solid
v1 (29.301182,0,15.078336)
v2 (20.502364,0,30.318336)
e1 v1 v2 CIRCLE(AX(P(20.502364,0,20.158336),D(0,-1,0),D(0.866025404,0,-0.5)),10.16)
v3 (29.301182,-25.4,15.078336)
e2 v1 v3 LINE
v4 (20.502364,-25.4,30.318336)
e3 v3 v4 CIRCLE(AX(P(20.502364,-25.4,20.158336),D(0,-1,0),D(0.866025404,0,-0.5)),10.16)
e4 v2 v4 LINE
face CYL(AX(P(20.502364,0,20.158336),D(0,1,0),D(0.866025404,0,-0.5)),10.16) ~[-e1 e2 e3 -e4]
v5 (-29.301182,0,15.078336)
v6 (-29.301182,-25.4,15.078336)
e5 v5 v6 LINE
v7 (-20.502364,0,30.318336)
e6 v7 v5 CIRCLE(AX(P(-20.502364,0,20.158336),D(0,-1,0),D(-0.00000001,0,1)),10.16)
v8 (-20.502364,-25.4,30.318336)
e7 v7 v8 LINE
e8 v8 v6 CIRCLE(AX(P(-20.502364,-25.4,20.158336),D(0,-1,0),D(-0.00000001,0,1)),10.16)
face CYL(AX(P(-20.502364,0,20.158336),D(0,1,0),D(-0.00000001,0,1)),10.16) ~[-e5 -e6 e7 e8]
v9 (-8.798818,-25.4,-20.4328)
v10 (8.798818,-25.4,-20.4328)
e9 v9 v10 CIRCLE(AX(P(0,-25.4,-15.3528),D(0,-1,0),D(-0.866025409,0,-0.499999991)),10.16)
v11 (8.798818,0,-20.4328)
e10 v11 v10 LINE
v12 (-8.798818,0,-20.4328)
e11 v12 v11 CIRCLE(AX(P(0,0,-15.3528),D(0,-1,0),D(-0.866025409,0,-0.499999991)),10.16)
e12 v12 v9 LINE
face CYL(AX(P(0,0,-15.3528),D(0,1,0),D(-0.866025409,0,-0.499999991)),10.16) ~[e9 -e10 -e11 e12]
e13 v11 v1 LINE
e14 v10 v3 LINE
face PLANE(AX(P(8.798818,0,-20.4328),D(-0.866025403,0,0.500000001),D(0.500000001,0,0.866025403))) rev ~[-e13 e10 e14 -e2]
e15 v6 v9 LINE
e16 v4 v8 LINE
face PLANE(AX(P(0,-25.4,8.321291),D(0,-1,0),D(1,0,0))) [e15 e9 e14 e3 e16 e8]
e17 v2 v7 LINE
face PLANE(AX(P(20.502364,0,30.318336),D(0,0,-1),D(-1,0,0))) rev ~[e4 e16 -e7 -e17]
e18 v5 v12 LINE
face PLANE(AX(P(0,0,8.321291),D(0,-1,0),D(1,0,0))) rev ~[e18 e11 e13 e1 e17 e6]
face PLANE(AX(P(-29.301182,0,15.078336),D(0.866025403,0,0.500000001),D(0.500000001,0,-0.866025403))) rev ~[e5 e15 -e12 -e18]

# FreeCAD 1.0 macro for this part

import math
import FreeCAD as App
import Part
import Sketcher
from FreeCAD import Vector
Q = App.Units.Quantity

doc = App.newDocument("Part")
body = doc.addObject("PartDesign::Body", "Body")

sketch1 = body.newObject("Sketcher::SketchObject", "Sketch")
sketch1.AttachmentSupport = (doc.getObject("XZ_Plane"), [""])
sketch1.MapMode = "FlatFace"
sketch1.addGeometry(Part.LineSegment(Vector(-29, 15, 0), Vector(-9, -20, 0)), False)
sketch1.addGeometry(Part.ArcOfCircle(Part.Circle(Vector(0, -15, 0), Vector(0, 0, 1), 10), math.radians(-150), math.radians(-30)), False)
sketch1.addGeometry(Part.LineSegment(Vector(9, -20, 0), Vector(29, 15, 0)), False)
sketch1.addGeometry(Part.ArcOfCircle(Part.Circle(Vector(21, 20, 0), Vector(0, 0, 1), 10), math.radians(-30), math.radians(90)), False)
sketch1.addGeometry(Part.LineSegment(Vector(21, 30, 0), Vector(-21, 30, 0)), False)
sketch1.addGeometry(Part.ArcOfCircle(Part.Circle(Vector(-21, 20, 0), Vector(0, 0, 1), 10), math.radians(90), math.radians(210)), False)
sketch1.addConstraint(Sketcher.Constraint("Tangent", 0, 2, 1, 1))
sketch1.addConstraint(Sketcher.Constraint("Tangent", 1, 2, 2, 1))
sketch1.addConstraint(Sketcher.Constraint("Tangent", 2, 2, 3, 1))
sketch1.addConstraint(Sketcher.Constraint("Tangent", 3, 2, 4, 1))
sketch1.addConstraint(Sketcher.Constraint("Tangent", 4, 2, 5, 1))
sketch1.addConstraint(Sketcher.Constraint("Tangent", 5, 2, 0, 1))
sketch1.addConstraint(Sketcher.Constraint("Horizontal", 4))
sketch1.addConstraint(Sketcher.Constraint("Equal", 1, 3))
sketch1.addConstraint(Sketcher.Constraint("Equal", 3, 5))
sketch1.addConstraint(Sketcher.Constraint("Symmetric", 0, 2, 1, 2, -2))
sketch1.addConstraint(Sketcher.Constraint("Radius", 1, Q("0.4 in")))
sketch1.addConstraint(Sketcher.Constraint("Angle", 0, Q("-60 deg")))
sketch1.addConstraint(Sketcher.Constraint("DistanceX", 0, 2, 2, 2, Q("1.5 in")))
sketch1.addConstraint(Sketcher.Constraint("DistanceY", 1, 3, -1, 1, Q("15.3528 mm")))
pad1 = body.newObject("PartDesign::Pad", "Pad")
pad1.Profile = sketch1
pad1.Length = Q("1 in")

doc.recompute()
